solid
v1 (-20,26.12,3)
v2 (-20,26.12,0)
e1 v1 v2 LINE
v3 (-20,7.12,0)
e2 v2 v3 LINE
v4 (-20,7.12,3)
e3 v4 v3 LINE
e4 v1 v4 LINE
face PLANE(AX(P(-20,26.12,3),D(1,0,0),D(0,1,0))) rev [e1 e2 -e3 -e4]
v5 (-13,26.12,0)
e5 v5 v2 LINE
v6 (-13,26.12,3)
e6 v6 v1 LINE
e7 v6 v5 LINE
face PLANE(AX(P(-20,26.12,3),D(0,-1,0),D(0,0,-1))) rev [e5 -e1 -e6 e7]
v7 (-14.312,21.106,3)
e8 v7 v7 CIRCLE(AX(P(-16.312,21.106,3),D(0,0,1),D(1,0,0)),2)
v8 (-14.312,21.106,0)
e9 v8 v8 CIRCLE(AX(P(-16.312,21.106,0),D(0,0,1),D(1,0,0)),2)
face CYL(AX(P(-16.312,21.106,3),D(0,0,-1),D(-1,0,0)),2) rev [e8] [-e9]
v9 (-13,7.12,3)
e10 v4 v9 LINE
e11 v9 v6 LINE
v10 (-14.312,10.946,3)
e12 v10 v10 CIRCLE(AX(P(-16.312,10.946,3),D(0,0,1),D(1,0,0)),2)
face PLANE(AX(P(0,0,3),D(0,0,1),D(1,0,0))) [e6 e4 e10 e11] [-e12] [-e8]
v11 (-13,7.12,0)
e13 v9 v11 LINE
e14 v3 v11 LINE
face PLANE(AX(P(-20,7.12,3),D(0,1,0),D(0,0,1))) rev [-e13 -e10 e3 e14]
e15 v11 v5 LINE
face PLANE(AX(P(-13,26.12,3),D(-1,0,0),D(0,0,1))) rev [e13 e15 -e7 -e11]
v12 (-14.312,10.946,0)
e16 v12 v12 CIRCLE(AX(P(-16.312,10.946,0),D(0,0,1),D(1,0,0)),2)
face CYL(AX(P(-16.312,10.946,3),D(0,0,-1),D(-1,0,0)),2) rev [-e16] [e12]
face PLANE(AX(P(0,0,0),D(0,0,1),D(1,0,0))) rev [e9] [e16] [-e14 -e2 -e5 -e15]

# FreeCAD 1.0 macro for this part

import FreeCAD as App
import Part
import Sketcher
from FreeCAD import Vector

doc = App.newDocument("Part")
params = doc.addObject("Spreadsheet::Sheet", "Params")
for row, (alias, value) in enumerate([
    ("sketch1_diameter", "4 mm"),
    ("sketch1_width", "7 mm"),
    ("sketch1_height", "19 mm"),
    ("pad1_length", "3 mm"),
], start=1):
    params.set(f"A{row}", alias)
    params.set(f"B{row}", "=" + value)
    params.setAlias(f"B{row}", alias)

body = doc.addObject("PartDesign::Body", "Body")

sketch1 = doc.addObject("Sketcher::SketchObject", "Sketch")
body.addObject(sketch1)
sketch1.AttachmentSupport = (doc.XY_Plane, [""])
sketch1.MapMode = "FlatFace"
sketch1.addGeometry([
    Part.LineSegment(Vector(-20, 26.1, 0), Vector(-20, 7.1, 0)),
    Part.LineSegment(Vector(-20, 7.1, 0), Vector(-13, 7.1, 0)),
    Part.LineSegment(Vector(-13, 7.1, 0), Vector(-13, 26.1, 0)),
    Part.LineSegment(Vector(-13, 26.1, 0), Vector(-20, 26.1, 0)),
    Part.Circle(Vector(-16.3, 10.9, 0), Vector(0, 0, 1), 2),
    Part.Circle(Vector(-16.3, 21.1, 0), Vector(0, 0, 1), 2),
], False)
sketch1.addConstraint([
    Sketcher.Constraint("Coincident", 0, 2, 1, 1),
    Sketcher.Constraint("Coincident", 1, 2, 2, 1),
    Sketcher.Constraint("Coincident", 2, 2, 3, 1),
    Sketcher.Constraint("Coincident", 3, 2, 0, 1),
    Sketcher.Constraint("Vertical", 0),
    Sketcher.Constraint("Horizontal", 1),
    Sketcher.Constraint("Vertical", 2),
    Sketcher.Constraint("Horizontal", 3),
    Sketcher.Constraint("Equal", 4, 5),
    Sketcher.Constraint("Vertical", 4, 3, 5, 3),
    Sketcher.Constraint("Diameter", 4, 4.0),
    Sketcher.Constraint("DistanceX", 1, 1, 1, 2, 7.0),
    Sketcher.Constraint("DistanceY", 0, 2, 0, 1, 19.0),
    Sketcher.Constraint("DistanceX", 0, 2, -1, 1, 20.0),
    Sketcher.Constraint("DistanceY", -1, 1, 0, 2, 7.12),
    Sketcher.Constraint("DistanceY", 4, 3, 5, 3, 10.16),
    Sketcher.Constraint("DistanceX", 4, 3, -1, 1, 16.312),
    Sketcher.Constraint("DistanceY", -1, 1, 4, 3, 10.946),
])
sketch1.setExpression("Constraints[10]", "Params.sketch1_diameter")
sketch1.setExpression("Constraints[11]", "Params.sketch1_width")
sketch1.setExpression("Constraints[12]", "Params.sketch1_height")
pad1 = doc.addObject("PartDesign::Pad", "Pad")
body.addObject(pad1)
pad1.Profile = sketch1
pad1.setExpression("Length", "Params.pad1_length")

doc.recompute()
